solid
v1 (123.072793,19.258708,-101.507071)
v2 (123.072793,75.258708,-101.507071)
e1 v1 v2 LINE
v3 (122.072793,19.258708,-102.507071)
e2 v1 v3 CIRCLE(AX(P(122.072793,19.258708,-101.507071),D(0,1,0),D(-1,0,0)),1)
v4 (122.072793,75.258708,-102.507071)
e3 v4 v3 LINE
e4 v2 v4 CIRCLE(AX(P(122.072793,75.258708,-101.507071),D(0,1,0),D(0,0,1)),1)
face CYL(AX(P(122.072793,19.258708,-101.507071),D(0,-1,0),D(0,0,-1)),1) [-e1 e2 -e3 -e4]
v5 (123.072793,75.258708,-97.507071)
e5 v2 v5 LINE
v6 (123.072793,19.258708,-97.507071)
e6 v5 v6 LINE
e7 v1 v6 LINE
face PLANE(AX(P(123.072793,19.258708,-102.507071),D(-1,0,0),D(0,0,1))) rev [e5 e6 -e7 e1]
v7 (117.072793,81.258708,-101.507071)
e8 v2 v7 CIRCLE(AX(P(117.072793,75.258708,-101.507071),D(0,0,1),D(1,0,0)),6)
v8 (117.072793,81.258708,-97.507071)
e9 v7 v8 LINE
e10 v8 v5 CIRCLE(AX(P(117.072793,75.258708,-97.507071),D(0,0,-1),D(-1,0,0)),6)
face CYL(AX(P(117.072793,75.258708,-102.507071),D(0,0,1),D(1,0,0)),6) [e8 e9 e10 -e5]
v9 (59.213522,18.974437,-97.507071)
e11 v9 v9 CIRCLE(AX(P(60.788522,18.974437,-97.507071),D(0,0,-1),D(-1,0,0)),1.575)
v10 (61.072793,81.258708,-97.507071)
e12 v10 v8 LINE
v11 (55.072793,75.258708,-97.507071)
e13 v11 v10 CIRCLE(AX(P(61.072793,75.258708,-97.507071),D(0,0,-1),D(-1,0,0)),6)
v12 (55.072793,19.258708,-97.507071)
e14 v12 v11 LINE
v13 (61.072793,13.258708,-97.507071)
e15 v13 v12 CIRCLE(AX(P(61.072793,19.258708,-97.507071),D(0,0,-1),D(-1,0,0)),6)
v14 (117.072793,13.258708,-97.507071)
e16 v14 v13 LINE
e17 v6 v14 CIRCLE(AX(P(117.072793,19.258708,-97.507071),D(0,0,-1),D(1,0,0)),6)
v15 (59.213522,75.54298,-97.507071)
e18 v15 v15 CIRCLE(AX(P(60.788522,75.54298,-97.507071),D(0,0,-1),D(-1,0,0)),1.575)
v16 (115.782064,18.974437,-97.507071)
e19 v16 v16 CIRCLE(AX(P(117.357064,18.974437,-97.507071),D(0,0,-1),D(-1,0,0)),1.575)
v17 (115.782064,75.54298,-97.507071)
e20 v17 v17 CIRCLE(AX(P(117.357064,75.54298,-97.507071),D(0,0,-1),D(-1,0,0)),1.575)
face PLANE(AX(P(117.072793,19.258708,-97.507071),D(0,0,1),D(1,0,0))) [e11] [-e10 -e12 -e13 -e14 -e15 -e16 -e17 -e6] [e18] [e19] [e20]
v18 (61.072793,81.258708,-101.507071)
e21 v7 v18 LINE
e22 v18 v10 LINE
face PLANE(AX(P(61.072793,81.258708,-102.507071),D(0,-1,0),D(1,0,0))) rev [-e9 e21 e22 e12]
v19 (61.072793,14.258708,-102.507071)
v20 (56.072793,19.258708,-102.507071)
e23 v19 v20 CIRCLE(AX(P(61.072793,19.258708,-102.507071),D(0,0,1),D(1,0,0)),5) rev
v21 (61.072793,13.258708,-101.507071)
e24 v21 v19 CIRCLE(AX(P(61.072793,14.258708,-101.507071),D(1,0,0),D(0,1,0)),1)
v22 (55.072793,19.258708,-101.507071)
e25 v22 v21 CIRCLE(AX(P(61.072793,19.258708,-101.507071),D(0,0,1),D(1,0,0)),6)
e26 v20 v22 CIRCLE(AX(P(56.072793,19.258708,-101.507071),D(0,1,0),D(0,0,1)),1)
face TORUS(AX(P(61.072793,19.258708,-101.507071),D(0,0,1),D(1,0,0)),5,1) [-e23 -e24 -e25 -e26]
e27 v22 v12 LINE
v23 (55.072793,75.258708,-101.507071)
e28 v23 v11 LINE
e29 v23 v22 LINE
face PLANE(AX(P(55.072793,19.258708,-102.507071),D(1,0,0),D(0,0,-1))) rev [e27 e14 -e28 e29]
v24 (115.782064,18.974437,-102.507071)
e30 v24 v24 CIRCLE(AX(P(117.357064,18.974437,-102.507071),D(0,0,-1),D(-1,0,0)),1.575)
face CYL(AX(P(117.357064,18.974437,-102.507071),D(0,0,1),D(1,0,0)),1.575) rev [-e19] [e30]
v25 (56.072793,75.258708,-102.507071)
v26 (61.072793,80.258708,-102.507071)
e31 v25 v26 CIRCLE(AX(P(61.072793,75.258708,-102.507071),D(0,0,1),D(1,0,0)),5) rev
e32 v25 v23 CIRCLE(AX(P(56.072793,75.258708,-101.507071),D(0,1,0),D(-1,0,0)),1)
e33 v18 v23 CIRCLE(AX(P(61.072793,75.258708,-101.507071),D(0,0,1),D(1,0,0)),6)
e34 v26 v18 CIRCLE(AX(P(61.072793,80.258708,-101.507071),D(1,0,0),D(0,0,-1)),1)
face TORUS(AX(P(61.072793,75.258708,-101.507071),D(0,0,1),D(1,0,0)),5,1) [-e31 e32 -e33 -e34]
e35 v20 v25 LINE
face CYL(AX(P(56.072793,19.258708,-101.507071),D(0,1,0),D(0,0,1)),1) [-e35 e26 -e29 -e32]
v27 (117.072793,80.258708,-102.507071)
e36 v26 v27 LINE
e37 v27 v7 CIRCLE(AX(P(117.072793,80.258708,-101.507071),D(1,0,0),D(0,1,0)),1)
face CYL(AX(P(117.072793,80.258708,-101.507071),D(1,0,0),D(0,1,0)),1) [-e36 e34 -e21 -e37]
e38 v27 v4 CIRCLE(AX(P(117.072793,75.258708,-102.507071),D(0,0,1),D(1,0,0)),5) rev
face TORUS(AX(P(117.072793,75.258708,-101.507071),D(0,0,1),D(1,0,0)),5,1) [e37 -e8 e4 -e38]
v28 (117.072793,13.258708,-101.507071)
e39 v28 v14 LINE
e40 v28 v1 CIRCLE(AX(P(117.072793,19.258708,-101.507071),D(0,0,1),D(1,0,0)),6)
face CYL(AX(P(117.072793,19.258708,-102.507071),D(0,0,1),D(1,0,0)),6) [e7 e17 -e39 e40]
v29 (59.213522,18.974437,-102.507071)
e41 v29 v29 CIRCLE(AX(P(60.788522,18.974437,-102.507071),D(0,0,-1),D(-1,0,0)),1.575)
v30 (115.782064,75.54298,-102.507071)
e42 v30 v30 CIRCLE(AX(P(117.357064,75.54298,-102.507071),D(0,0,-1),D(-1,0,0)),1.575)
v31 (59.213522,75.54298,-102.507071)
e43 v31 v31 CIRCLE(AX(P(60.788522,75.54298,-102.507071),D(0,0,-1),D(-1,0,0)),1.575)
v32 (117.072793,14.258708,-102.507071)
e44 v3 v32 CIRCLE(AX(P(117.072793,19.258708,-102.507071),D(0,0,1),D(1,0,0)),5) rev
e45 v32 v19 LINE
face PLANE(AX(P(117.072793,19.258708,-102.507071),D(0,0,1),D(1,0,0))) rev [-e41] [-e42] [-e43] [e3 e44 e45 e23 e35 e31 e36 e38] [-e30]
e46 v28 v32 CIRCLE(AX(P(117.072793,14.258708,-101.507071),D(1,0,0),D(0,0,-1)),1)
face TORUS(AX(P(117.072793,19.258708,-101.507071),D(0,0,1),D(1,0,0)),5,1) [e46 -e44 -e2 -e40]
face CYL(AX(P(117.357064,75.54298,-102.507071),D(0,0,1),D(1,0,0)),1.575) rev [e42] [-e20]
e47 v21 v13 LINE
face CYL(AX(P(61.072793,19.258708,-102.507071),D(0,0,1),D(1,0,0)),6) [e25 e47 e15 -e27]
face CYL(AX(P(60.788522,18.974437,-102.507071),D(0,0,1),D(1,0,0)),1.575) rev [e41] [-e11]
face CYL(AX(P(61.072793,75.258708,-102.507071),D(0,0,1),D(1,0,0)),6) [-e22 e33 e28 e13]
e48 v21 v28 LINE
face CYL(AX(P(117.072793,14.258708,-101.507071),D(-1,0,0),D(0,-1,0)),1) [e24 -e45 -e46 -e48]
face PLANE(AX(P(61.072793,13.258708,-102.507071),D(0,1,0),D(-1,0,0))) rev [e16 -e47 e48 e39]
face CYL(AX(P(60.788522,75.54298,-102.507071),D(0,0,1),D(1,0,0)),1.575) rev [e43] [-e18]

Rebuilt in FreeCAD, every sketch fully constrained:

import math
import FreeCAD as App
import Part
import Sketcher
from FreeCAD import Vector
Q = App.Units.Quantity


def edges_at(feature, points):
    """Names of the edges that pass closest to the given points."""
    edges = feature.Shape.Edges
    near = lambda p: min(range(len(edges)), key=lambda i: edges[i].distToShape(Part.Vertex(*p))[0])
    return sorted({f"Edge{near(p) + 1}" for p in points})

doc = App.newDocument("Part")
params = doc.addObject("Spreadsheet::Sheet", "Params")
for row, (alias, value) in enumerate([
    ("sketch1_radius", "6 mm"),
    ("sketch1_diameter", "3.15 mm"),
    ("sketch1_width", "56 mm"),
    ("pad1_length", "5 mm"),
    ("fillet_radius", "1 mm"),
], start=1):
    params.set(f"A{row}", alias)
    params.set(f"B{row}", "=" + value)
    params.setAlias(f"B{row}", alias)

body = doc.addObject("PartDesign::Body", "Body")

sketch1 = body.newObject("Sketcher::SketchObject", "Sketch")
sketch1.AttachmentSupport = (doc.getObject("XY_Plane"), [""])
sketch1.MapMode = "FlatFace"
sketch1.AttachmentOffset = App.Placement(Vector(0, 0, -97.507071), App.Rotation())
sketch1.addGeometry([
    Part.LineSegment(Vector(117.1, 13.3, 0), Vector(61.1, 13.3, 0)),
    Part.ArcOfCircle(Part.Circle(Vector(61.1, 19.3, 0), Vector(0, 0, 1), 6), math.radians(180), math.radians(270)),
    Part.LineSegment(Vector(55.1, 19.3, 0), Vector(55.1, 75.3, 0)),
    Part.ArcOfCircle(Part.Circle(Vector(61.1, 75.3, 0), Vector(0, 0, 1), 6), math.radians(90), math.radians(180)),
    Part.LineSegment(Vector(61.1, 81.3, 0), Vector(117.1, 81.3, 0)),
    Part.ArcOfCircle(Part.Circle(Vector(117.1, 75.3, 0), Vector(0, 0, 1), 6), math.radians(0), math.radians(90)),
    Part.LineSegment(Vector(123.1, 75.3, 0), Vector(123.1, 19.3, 0)),
    Part.ArcOfCircle(Part.Circle(Vector(117.1, 19.3, 0), Vector(0, 0, 1), 6), math.radians(-90), math.radians(0)),
    Part.Circle(Vector(60.8, 19, 0), Vector(0, 0, 1), 1.6),
    Part.Circle(Vector(117.4, 19, 0), Vector(0, 0, 1), 1.6),
    Part.Circle(Vector(60.8, 75.5, 0), Vector(0, 0, 1), 1.6),
    Part.Circle(Vector(117.4, 75.5, 0), Vector(0, 0, 1), 1.6),
], False)
sketch1.addConstraint([
    Sketcher.Constraint("Tangent", 0, 2, 1, 2),
    Sketcher.Constraint("Tangent", 1, 1, 2, 1),
    Sketcher.Constraint("Tangent", 2, 2, 3, 2),
    Sketcher.Constraint("Tangent", 3, 1, 4, 1),
    Sketcher.Constraint("Tangent", 4, 2, 5, 2),
    Sketcher.Constraint("Tangent", 5, 1, 6, 1),
    Sketcher.Constraint("Tangent", 6, 2, 7, 2),
    Sketcher.Constraint("Tangent", 7, 1, 0, 1),
    Sketcher.Constraint("Horizontal", 0),
    Sketcher.Constraint("Vertical", 2),
    Sketcher.Constraint("Horizontal", 4),
    Sketcher.Constraint("Vertical", 6),
    Sketcher.Constraint("Equal", 1, 3),
    Sketcher.Constraint("Equal", 3, 5),
    Sketcher.Constraint("Equal", 5, 7),
    Sketcher.Constraint("Equal", 8, 9),
    Sketcher.Constraint("Equal", 9, 10),
    Sketcher.Constraint("Equal", 10, 11),
    Sketcher.Constraint("Horizontal", 8, 3, 9, 3),
    Sketcher.Constraint("Horizontal", 10, 3, 11, 3),
    Sketcher.Constraint("Vertical", 8, 3, 10, 3),
    Sketcher.Constraint("Vertical", 9, 3, 11, 3),
    Sketcher.Constraint("Equal", 4, 2),
    Sketcher.Constraint("Radius", 1, Q("6 mm")),
    Sketcher.Constraint("Diameter", 8, Q("3.15 mm")),
    Sketcher.Constraint("DistanceX", 0, 2, 0, 1, Q("56 mm")),
    Sketcher.Constraint("DistanceY", -1, 1, 1, 3, Q("19.258708 mm")),
    Sketcher.Constraint("DistanceX", -1, 1, 8, 3, Q("60.788522 mm")),
    Sketcher.Constraint("DistanceY", -1, 1, 10, 3, Q("75.54298 mm")),
    Sketcher.Constraint("DistanceX", 8, 3, 1, 3, Q("0.284271 mm")),
    Sketcher.Constraint("DistanceY", 8, 3, 1, 3, Q("0.284271 mm")),
    Sketcher.Constraint("DistanceX", 7, 3, 9, 3, Q("0.284271 mm")),
])
sketch1.setExpression("Constraints[23]", "Params.sketch1_radius")
sketch1.setExpression("Constraints[24]", "Params.sketch1_diameter")
sketch1.setExpression("Constraints[25]", "Params.sketch1_width")
pad1 = body.newObject("PartDesign::Pad", "Pad")
pad1.Profile = sketch1
pad1.setExpression("Length", "Params.pad1_length")
pad1.Reversed = True
doc.recompute()

fillet = body.newObject("PartDesign::Fillet", "Fillet")
fillet.Base = (pad1, edges_at(pad1, [
    (56.83, 15.016, -102.507),
    (55.073, 47.259, -102.507),
    (56.83, 79.501, -102.507),
    (89.073, 81.259, -102.507),
    (121.315, 79.501, -102.507),
    (123.073, 47.259, -102.507),
    (121.315, 15.016, -102.507),
    (89.073, 13.259, -102.507),
]))
fillet.setExpression("Radius", "Params.fillet_radius")

doc.recompute()
